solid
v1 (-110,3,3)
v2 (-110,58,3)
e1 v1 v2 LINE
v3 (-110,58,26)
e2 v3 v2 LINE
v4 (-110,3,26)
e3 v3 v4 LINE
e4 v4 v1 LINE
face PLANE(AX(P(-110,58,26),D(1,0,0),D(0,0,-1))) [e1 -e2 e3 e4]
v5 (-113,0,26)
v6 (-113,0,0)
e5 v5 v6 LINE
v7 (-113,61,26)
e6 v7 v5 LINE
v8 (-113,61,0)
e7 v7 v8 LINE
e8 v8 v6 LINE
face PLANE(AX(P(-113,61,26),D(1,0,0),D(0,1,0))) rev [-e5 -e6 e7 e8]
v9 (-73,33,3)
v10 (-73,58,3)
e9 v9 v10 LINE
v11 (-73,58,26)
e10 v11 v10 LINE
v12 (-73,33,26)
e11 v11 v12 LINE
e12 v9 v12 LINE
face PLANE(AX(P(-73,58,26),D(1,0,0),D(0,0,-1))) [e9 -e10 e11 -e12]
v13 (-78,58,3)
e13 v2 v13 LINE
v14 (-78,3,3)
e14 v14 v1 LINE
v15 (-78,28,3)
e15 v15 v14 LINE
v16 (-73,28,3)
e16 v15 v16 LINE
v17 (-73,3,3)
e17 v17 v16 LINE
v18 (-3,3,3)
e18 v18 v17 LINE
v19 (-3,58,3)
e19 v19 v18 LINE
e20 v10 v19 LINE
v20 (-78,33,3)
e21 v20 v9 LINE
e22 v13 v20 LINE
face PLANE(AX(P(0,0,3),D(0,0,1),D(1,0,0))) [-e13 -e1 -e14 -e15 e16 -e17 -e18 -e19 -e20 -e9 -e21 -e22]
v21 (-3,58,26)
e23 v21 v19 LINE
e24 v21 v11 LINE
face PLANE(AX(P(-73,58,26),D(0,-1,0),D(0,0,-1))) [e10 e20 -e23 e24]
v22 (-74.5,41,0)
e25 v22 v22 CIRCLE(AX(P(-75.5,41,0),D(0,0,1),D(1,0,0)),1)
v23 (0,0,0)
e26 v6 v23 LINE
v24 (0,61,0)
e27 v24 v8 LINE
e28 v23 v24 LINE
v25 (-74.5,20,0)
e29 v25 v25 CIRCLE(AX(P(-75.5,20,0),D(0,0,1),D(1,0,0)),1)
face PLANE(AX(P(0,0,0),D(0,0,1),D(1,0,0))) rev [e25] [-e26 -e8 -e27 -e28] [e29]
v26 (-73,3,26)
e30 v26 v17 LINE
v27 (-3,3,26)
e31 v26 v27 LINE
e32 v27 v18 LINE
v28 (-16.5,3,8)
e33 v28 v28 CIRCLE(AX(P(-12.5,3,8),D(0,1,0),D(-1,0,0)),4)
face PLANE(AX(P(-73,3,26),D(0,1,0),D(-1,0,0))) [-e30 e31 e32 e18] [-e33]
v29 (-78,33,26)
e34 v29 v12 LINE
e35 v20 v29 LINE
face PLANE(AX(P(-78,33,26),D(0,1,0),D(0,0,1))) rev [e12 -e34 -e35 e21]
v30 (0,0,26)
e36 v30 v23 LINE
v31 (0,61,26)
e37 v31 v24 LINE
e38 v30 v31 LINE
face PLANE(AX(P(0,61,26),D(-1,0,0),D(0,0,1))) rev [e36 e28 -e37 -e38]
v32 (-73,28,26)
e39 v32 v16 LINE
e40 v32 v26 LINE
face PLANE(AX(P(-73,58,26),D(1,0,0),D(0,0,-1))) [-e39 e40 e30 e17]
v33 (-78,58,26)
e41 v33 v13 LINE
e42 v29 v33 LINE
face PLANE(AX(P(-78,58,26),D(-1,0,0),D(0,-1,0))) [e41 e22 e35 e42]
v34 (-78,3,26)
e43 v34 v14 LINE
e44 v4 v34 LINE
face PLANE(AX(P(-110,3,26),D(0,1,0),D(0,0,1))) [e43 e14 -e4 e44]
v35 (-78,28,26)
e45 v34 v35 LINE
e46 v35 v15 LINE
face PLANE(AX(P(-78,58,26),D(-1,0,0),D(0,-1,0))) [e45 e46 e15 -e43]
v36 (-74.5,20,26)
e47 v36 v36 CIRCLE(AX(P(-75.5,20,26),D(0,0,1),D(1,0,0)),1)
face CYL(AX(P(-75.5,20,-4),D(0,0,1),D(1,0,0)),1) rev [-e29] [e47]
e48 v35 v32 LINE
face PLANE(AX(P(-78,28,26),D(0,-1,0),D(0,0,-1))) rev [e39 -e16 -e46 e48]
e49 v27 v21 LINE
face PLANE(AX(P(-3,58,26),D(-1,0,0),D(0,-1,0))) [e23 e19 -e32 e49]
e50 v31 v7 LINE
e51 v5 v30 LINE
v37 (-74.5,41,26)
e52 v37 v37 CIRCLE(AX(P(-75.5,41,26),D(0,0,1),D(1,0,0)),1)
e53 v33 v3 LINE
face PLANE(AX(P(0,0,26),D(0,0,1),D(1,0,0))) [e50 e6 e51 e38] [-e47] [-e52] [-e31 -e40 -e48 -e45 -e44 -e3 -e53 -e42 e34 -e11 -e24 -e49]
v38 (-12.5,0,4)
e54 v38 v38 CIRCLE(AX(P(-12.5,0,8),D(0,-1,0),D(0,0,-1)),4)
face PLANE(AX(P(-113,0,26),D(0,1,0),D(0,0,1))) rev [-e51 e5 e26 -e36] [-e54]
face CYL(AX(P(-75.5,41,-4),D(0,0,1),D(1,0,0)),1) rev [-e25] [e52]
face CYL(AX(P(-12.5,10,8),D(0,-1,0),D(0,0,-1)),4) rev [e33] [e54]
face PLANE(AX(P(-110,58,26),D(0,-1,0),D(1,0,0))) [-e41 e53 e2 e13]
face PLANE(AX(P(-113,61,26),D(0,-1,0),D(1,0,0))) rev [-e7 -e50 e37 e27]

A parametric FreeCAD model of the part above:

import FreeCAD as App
import Part
import Sketcher
from FreeCAD import Vector
Q = App.Units.Quantity


def add_polygon(sketch, points):
    """Adds a closed chain of lines whose ends are joined by coincident constraints."""
    first, n = sketch.GeometryCount, len(points)
    for a, b in zip(points, points[1:] + points[:1]):
        sketch.addGeometry(Part.LineSegment(App.Vector(*a, 0), App.Vector(*b, 0)), False)
    for i in range(n):
        sketch.addConstraint(Sketcher.Constraint("Coincident", first + i, 2, first + (i + 1) % n, 1))

doc = App.newDocument("Part")
body = doc.addObject("PartDesign::Body", "Body")

# Sketch on XY plane
sketch1 = body.newObject("Sketcher::SketchObject", "Sketch")
sketch1.AttachmentSupport = (doc.getObject("XY_Plane"), [""])
sketch1.MapMode = "FlatFace"
add_polygon(sketch1, [(-113, 61), (-113, 0), (0, 0), (0, 61)])  # lines 0-3
add_polygon(sketch1, [(-78, 3), (-110, 3), (-110, 58), (-78, 58)])  # lines 4-7
add_polygon(sketch1, [(-3, 3), (-73, 3), (-73, 58), (-3, 58)])  # lines 8-11
sketch1.addConstraint([
    Sketcher.Constraint("Vertical", 0),
    Sketcher.Constraint("Horizontal", 1),
    Sketcher.Constraint("Vertical", 2),
    Sketcher.Constraint("Horizontal", 3),
    Sketcher.Constraint("Horizontal", 4),
    Sketcher.Constraint("Vertical", 5),
    Sketcher.Constraint("Horizontal", 6),
    Sketcher.Constraint("Vertical", 7),
    Sketcher.Constraint("Horizontal", 8),
    Sketcher.Constraint("Vertical", 9),
    Sketcher.Constraint("Horizontal", 10),
    Sketcher.Constraint("Vertical", 11),
    Sketcher.Constraint("Coincident", 1, 2, -1, 1),
    Sketcher.Constraint("Horizontal", 7, 2, 8, 2),
    Sketcher.Constraint("Horizontal", 6, 2, 9, 2),
    Sketcher.Constraint("DistanceX", 1, 1, 1, 2, Q("113 mm")),
    Sketcher.Constraint("DistanceX", 4, 2, 4, 1, Q("32 mm")),
    Sketcher.Constraint("DistanceX", 8, 2, 8, 1, Q("70 mm")),
    Sketcher.Constraint("DistanceY", 0, 2, 0, 1, Q("61 mm")),
    Sketcher.Constraint("DistanceY", 5, 1, 5, 2, Q("55 mm")),
    Sketcher.Constraint("DistanceX", 4, 2, -1, 1, Q("110 mm")),
    Sketcher.Constraint("DistanceY", -1, 1, 4, 2, Q("3 mm")),
    Sketcher.Constraint("DistanceX", 8, 2, -1, 1, Q("73 mm")),
])
pad1 = body.newObject("PartDesign::Pad", "Pad")
pad1.Profile = sketch1
pad1.Length = 26

# Sketch on XY plane
sketch2 = body.newObject("Sketcher::SketchObject", "Sketch001")
sketch2.AttachmentSupport = (doc.getObject("XY_Plane"), [""])
sketch2.MapMode = "FlatFace"
add_polygon(sketch2, [(-3, 58), (-3, 3), (-73, 3), (-73, 58)])  # lines 0-3
add_polygon(sketch2, [(-78, 58), (-78, 3), (-110, 3), (-110, 58)])  # lines 4-7
sketch2.addConstraint([
    Sketcher.Constraint("Vertical", 0),
    Sketcher.Constraint("Horizontal", 1),
    Sketcher.Constraint("Vertical", 2),
    Sketcher.Constraint("Horizontal", 3),
    Sketcher.Constraint("Vertical", 4),
    Sketcher.Constraint("Horizontal", 5),
    Sketcher.Constraint("Vertical", 6),
    Sketcher.Constraint("Horizontal", 7),
    Sketcher.Constraint("Horizontal", 1, 2, 4, 2),
    Sketcher.Constraint("Horizontal", 3, 2, 6, 2),
    Sketcher.Constraint("DistanceX", 1, 2, 1, 1, Q("70 mm")),
    Sketcher.Constraint("DistanceX", 5, 2, 5, 1, Q("32 mm")),
    Sketcher.Constraint("DistanceY", 0, 2, 0, 1, Q("55 mm")),
    Sketcher.Constraint("DistanceX", 0, 2, -1, 1, Q("3 mm")),
    Sketcher.Constraint("DistanceY", -1, 1, 0, 2, Q("3 mm")),
    Sketcher.Constraint("DistanceX", 4, 2, -1, 1, Q("78 mm")),
])
pad2 = body.newObject("PartDesign::Pad", "Pad001")
pad2.Profile = sketch2
pad2.Length = 3

# Sketch on YZ plane
sketch3 = body.newObject("Sketcher::SketchObject", "Sketch002")
sketch3.AttachmentSupport = (doc.getObject("YZ_Plane"), [""])
sketch3.MapMode = "FlatFace"
sketch3.AttachmentOffset = App.Placement(Vector(0, 0, -73), App.Rotation())
add_polygon(sketch3, [(33, 26), (28, 26), (28, 3), (33, 3)])  # lines 0-3
sketch3.addConstraint([
    Sketcher.Constraint("Horizontal", 0),
    Sketcher.Constraint("Vertical", 1),
    Sketcher.Constraint("Horizontal", 2),
    Sketcher.Constraint("Vertical", 3),
    Sketcher.Constraint("DistanceX", 0, 2, 0, 1, Q("5 mm")),
    Sketcher.Constraint("DistanceY", 1, 2, 1, 1, Q("23 mm")),
    Sketcher.Constraint("DistanceX", -1, 1, 0, 2, Q("28 mm")),
    Sketcher.Constraint("DistanceY", -1, 1, 0, 2, Q("26 mm")),
])
pocket1 = body.newObject("PartDesign::Pocket", "Pocket")
pocket1.Profile = sketch3
pocket1.Length = 5

# Sketch on XZ plane
sketch4 = body.newObject("Sketcher::SketchObject", "Sketch003")
sketch4.AttachmentSupport = (doc.getObject("XZ_Plane"), [""])
sketch4.MapMode = "FlatFace"
sketch4.addGeometry(Part.Circle(Vector(-12.5, 8, 0), Vector(0, 0, 1), 4), False)
sketch4.addConstraint([
    Sketcher.Constraint("Diameter", 0, Q("8 mm")),
    Sketcher.Constraint("DistanceY", -1, 1, 0, 3, Q("8 mm")),
    Sketcher.Constraint("DistanceX", 0, 3, -1, 1, Q("12.5 mm")),
])
pocket2 = body.newObject("PartDesign::Pocket", "Pocket001")
pocket2.Profile = sketch4
pocket2.Length = 10

# Sketch on XY plane
sketch5 = body.newObject("Sketcher::SketchObject", "Sketch004")
sketch5.AttachmentSupport = (doc.getObject("XY_Plane"), [""])
sketch5.MapMode = "FlatFace"
sketch5.AttachmentOffset = App.Placement(Vector(0, 0, 26), App.Rotation())
sketch5.addGeometry([
    Part.Circle(Vector(-75.5, 41, 0), Vector(0, 0, 1), 1),
    Part.Circle(Vector(-75.5, 20, 0), Vector(0, 0, 1), 1),
], False)
sketch5.addConstraint([
    Sketcher.Constraint("Equal", 0, 1),
    Sketcher.Constraint("Vertical", 0, 3, 1, 3),
    Sketcher.Constraint("Diameter", 0, Q("2 mm")),
    Sketcher.Constraint("DistanceY", -1, 1, 0, 3, Q("41 mm")),
    Sketcher.Constraint("DistanceY", -1, 1, 1, 3, Q("20 mm")),
    Sketcher.Constraint("DistanceX", 0, 3, -1, 1, Q("75.5 mm")),
])
pocket3 = body.newObject("PartDesign::Pocket", "Pocket002")
pocket3.Profile = sketch5
pocket3.Length = 30

doc.recompute()
